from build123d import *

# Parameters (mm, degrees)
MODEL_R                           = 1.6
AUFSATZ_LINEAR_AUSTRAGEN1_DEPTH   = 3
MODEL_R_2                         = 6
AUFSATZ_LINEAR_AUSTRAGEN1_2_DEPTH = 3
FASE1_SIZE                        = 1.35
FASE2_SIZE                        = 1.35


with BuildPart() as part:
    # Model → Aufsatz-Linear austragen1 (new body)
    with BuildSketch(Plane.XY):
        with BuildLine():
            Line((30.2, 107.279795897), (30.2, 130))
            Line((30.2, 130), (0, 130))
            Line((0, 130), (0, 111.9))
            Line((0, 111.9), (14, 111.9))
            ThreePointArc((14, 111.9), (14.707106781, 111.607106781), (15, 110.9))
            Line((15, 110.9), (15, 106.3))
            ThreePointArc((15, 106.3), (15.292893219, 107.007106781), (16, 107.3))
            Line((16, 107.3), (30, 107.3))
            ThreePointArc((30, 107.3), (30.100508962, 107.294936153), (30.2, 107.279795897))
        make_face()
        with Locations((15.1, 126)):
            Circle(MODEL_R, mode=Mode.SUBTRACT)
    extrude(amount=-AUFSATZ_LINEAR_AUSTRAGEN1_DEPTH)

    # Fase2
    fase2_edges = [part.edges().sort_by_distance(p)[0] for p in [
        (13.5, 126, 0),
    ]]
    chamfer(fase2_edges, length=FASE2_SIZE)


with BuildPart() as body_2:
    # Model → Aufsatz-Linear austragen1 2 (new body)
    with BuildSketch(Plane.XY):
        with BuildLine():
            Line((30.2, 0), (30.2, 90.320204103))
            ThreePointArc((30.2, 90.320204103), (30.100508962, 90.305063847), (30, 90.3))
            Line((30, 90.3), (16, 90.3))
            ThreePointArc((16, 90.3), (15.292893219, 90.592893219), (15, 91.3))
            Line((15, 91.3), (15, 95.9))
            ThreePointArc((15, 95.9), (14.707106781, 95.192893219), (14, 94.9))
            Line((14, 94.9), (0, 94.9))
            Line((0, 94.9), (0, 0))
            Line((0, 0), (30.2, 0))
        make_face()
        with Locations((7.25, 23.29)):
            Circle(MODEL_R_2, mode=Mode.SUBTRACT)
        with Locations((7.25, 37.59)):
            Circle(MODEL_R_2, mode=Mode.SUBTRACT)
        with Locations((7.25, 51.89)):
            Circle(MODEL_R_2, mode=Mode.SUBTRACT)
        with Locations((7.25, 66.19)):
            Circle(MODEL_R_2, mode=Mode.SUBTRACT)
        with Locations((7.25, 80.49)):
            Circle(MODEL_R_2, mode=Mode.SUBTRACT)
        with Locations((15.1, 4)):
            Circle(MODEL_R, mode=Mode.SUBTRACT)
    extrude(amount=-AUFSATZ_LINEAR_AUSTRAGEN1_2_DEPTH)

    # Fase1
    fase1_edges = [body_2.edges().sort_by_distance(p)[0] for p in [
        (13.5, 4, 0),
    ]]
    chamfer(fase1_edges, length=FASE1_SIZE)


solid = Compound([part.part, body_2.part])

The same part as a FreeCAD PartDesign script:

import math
import FreeCAD as App
import Part
import Sketcher
from FreeCAD import Vector
Q = App.Units.Quantity


def edges_at(feature, points):
    """Names of the edges that pass closest to the given points."""
    edges = feature.Shape.Edges
    near = lambda p: min(range(len(edges)), key=lambda i: edges[i].distToShape(Part.Vertex(*p))[0])
    return sorted({f"Edge{near(p) + 1}" for p in points})

doc = App.newDocument("Part")
params = doc.addObject("Spreadsheet::Sheet", "Params")
for row, (alias, value) in enumerate([
    ("sketch1_radius", "1 mm"),
    ("sketch1_diameter", "3.2 mm"),
    ("sketch1_width", "14 mm"),
    ("sketch1_width2", "30.2 mm"),
    ("sketch1_height", "18.1 mm"),
    ("pad1_length", "3 mm"),
    ("chamfer_size", "1.35 mm"),
    ("sketch2_diameter", "12 mm"),
    ("sketch2_radius", "1 mm"),
    ("sketch2_diameter2", "3.2 mm"),
    ("sketch2_width", "14 mm"),
    ("sketch2_width2", "30.2 mm"),
    ("pad2_length", "3 mm"),
    ("chamfer2_size", "1.35 mm"),
], start=1):
    params.set(f"A{row}", alias)
    params.set(f"B{row}", "=" + value)
    params.setAlias(f"B{row}", alias)

body = doc.addObject("PartDesign::Body", "Body")

sketch1 = body.newObject("Sketcher::SketchObject", "Sketch")
sketch1.AttachmentSupport = (doc.getObject("XY_Plane"), [""])
sketch1.MapMode = "FlatFace"
sketch1.addGeometry(Part.LineSegment(Vector(30.2, 107.279796, 0), Vector(30.2, 130, 0)), False)
sketch1.addGeometry(Part.LineSegment(Vector(30.2, 130, 0), Vector(0, 130, 0)), False)
sketch1.addGeometry(Part.LineSegment(Vector(0, 130, 0), Vector(0, 111.9, 0)), False)
sketch1.addGeometry(Part.LineSegment(Vector(0, 111.9, 0), Vector(14, 111.9, 0)), False)
sketch1.addGeometry(Part.ArcOfCircle(Part.Circle(Vector(14, 110.9, 0), Vector(0, 0, 1), 1), math.radians(0), math.radians(90)), False)
sketch1.addGeometry(Part.LineSegment(Vector(15, 110.9, 0), Vector(15, 106.3, 0)), False)
sketch1.addGeometry(Part.ArcOfCircle(Part.Circle(Vector(16, 106.3, 0), Vector(0, 0, 1), 1), math.radians(90), math.radians(180)), False)
sketch1.addGeometry(Part.LineSegment(Vector(16, 107.3, 0), Vector(30, 107.3, 0)), False)
sketch1.addGeometry(Part.ArcOfCircle(Part.Circle(Vector(30, 106.3, 0), Vector(0, 0, 1), 1), math.radians(78.463041), math.radians(90)), False)
sketch1.addGeometry(Part.Circle(Vector(15.1, 126, 0), Vector(0, 0, 1), 1.6), False)
sketch1.addConstraint(Sketcher.Constraint("Coincident", 0, 2, 1, 1))
sketch1.addConstraint(Sketcher.Constraint("Coincident", 1, 2, 2, 1))
sketch1.addConstraint(Sketcher.Constraint("Coincident", 2, 2, 3, 1))
sketch1.addConstraint(Sketcher.Constraint("Tangent", 3, 2, 4, 2))
sketch1.addConstraint(Sketcher.Constraint("Tangent", 4, 1, 5, 1))
sketch1.addConstraint(Sketcher.Constraint("Tangent", 5, 2, 6, 2))
sketch1.addConstraint(Sketcher.Constraint("Tangent", 6, 1, 7, 1))
sketch1.addConstraint(Sketcher.Constraint("Tangent", 7, 2, 8, 2))
sketch1.addConstraint(Sketcher.Constraint("Coincident", 8, 1, 0, 1))
sketch1.addConstraint(Sketcher.Constraint("Vertical", 0))
sketch1.addConstraint(Sketcher.Constraint("Horizontal", 1))
sketch1.addConstraint(Sketcher.Constraint("Vertical", 2))
sketch1.addConstraint(Sketcher.Constraint("Horizontal", 3))
sketch1.addConstraint(Sketcher.Constraint("Vertical", 5))
sketch1.addConstraint(Sketcher.Constraint("Horizontal", 7))
sketch1.addConstraint(Sketcher.Constraint("Equal", 4, 6))
sketch1.addConstraint(Sketcher.Constraint("Equal", 6, 8))
sketch1.addConstraint(Sketcher.Constraint("PointOnObject", 1, 2, -2))
sketch1.addConstraint(Sketcher.Constraint("Equal", 3, 7))
sketch1.addConstraint(Sketcher.Constraint("Radius", 4, Q("1 mm")))
sketch1.addConstraint(Sketcher.Constraint("Diameter", 9, Q("3.2 mm")))
sketch1.addConstraint(Sketcher.Constraint("DistanceX", 3, 1, 3, 2, Q("14 mm")))
sketch1.addConstraint(Sketcher.Constraint("DistanceX", 1, 2, 1, 1, Q("30.2 mm")))
sketch1.addConstraint(Sketcher.Constraint("DistanceY", 2, 2, 2, 1, Q("18.1 mm")))
sketch1.addConstraint(Sketcher.Constraint("DistanceY", 5, 2, 5, 1, Q("4.6 mm")))
sketch1.addConstraint(Sketcher.Constraint("DistanceY", -1, 1, 9, 3, Q("126 mm")))
sketch1.addConstraint(Sketcher.Constraint("DistanceY", -1, 1, 0, 2, Q("130 mm")))
sketch1.addConstraint(Sketcher.Constraint("DistanceX", -1, 1, 9, 3, Q("15.1 mm")))
sketch1.setExpression("Constraints[19]", "Params.sketch1_radius")
sketch1.setExpression("Constraints[20]", "Params.sketch1_diameter")
sketch1.setExpression("Constraints[21]", "Params.sketch1_width")
sketch1.setExpression("Constraints[22]", "Params.sketch1_width2")
sketch1.setExpression("Constraints[23]", "Params.sketch1_height")
pad1 = body.newObject("PartDesign::Pad", "Pad")
pad1.Profile = sketch1
pad1.setExpression("Length", "Params.pad1_length")
pad1.Reversed = True
doc.recompute()

chamfer = body.newObject("PartDesign::Chamfer", "Chamfer")
chamfer.Base = (pad1, edges_at(pad1, [(13.5, 126, 0)]))
chamfer.setExpression("Size", "Params.chamfer_size")
body2 = doc.addObject("PartDesign::Body", "Body001")

sketch2 = body2.newObject("Sketcher::SketchObject", "Sketch001")
sketch2.AttachmentSupport = (doc.getObject("XY_Plane001"), [""])
sketch2.MapMode = "FlatFace"
sketch2.addGeometry(Part.LineSegment(Vector(30.2, 0, 0), Vector(30.2, 90.320204, 0)), False)
sketch2.addGeometry(Part.ArcOfCircle(Part.Circle(Vector(30, 91.3, 0), Vector(0, 0, 1), 1), math.radians(-90), math.radians(-78.463041)), False)
sketch2.addGeometry(Part.LineSegment(Vector(30, 90.3, 0), Vector(16, 90.3, 0)), False)
sketch2.addGeometry(Part.ArcOfCircle(Part.Circle(Vector(16, 91.3, 0), Vector(0, 0, 1), 1), math.radians(-180), math.radians(-90)), False)
sketch2.addGeometry(Part.LineSegment(Vector(15, 91.3, 0), Vector(15, 95.9, 0)), False)
sketch2.addGeometry(Part.ArcOfCircle(Part.Circle(Vector(14, 95.9, 0), Vector(0, 0, 1), 1), math.radians(-90), math.radians(0)), False)
sketch2.addGeometry(Part.LineSegment(Vector(14, 94.9, 0), Vector(0, 94.9, 0)), False)
sketch2.addGeometry(Part.LineSegment(Vector(0, 94.9, 0), Vector(0, 0, 0)), False)
sketch2.addGeometry(Part.LineSegment(Vector(0, 0, 0), Vector(30.2, 0, 0)), False)
sketch2.addGeometry(Part.Circle(Vector(7.25, 23.29, 0), Vector(0, 0, 1), 6), False)
sketch2.addGeometry(Part.Circle(Vector(7.25, 37.59, 0), Vector(0, 0, 1), 6), False)
sketch2.addGeometry(Part.Circle(Vector(15.1, 4, 0), Vector(0, 0, 1), 1.6), False)
sketch2.addGeometry(Part.Circle(Vector(7.25, 51.89, 0), Vector(0, 0, 1), 6), False)
sketch2.addGeometry(Part.Circle(Vector(7.25, 66.19, 0), Vector(0, 0, 1), 6), False)
sketch2.addGeometry(Part.Circle(Vector(7.25, 80.49, 0), Vector(0, 0, 1), 6), False)
sketch2.addConstraint(Sketcher.Constraint("Coincident", 0, 2, 1, 2))
sketch2.addConstraint(Sketcher.Constraint("Tangent", 1, 1, 2, 1))
sketch2.addConstraint(Sketcher.Constraint("Tangent", 2, 2, 3, 2))
sketch2.addConstraint(Sketcher.Constraint("Tangent", 3, 1, 4, 1))
sketch2.addConstraint(Sketcher.Constraint("Tangent", 4, 2, 5, 2))
sketch2.addConstraint(Sketcher.Constraint("Tangent", 5, 1, 6, 1))
sketch2.addConstraint(Sketcher.Constraint("Coincident", 6, 2, 7, 1))
sketch2.addConstraint(Sketcher.Constraint("Coincident", 7, 2, 8, 1))
sketch2.addConstraint(Sketcher.Constraint("Coincident", 8, 2, 0, 1))
sketch2.addConstraint(Sketcher.Constraint("Vertical", 0))
sketch2.addConstraint(Sketcher.Constraint("Horizontal", 2))
sketch2.addConstraint(Sketcher.Constraint("Vertical", 4))
sketch2.addConstraint(Sketcher.Constraint("Horizontal", 6))
sketch2.addConstraint(Sketcher.Constraint("Vertical", 7))
sketch2.addConstraint(Sketcher.Constraint("Horizontal", 8))
sketch2.addConstraint(Sketcher.Constraint("Coincident", 7, 2, -1, 1))
sketch2.addConstraint(Sketcher.Constraint("Equal", 1, 3))
sketch2.addConstraint(Sketcher.Constraint("Equal", 3, 5))
sketch2.addConstraint(Sketcher.Constraint("Equal", 9, 10))
sketch2.addConstraint(Sketcher.Constraint("Equal", 10, 12))
sketch2.addConstraint(Sketcher.Constraint("Equal", 12, 13))
sketch2.addConstraint(Sketcher.Constraint("Equal", 13, 14))
sketch2.addConstraint(Sketcher.Constraint("Vertical", 9, 3, 10, 3))
sketch2.addConstraint(Sketcher.Constraint("Vertical", 10, 3, 12, 3))
sketch2.addConstraint(Sketcher.Constraint("Vertical", 12, 3, 13, 3))
sketch2.addConstraint(Sketcher.Constraint("Vertical", 13, 3, 14, 3))
sketch2.addConstraint(Sketcher.Constraint("Equal", 2, 6))
sketch2.addConstraint(Sketcher.Constraint("Diameter", 9, Q("12 mm")))
sketch2.addConstraint(Sketcher.Constraint("Radius", 1, Q("1 mm")))
sketch2.addConstraint(Sketcher.Constraint("Diameter", 11, Q("3.2 mm")))
sketch2.addConstraint(Sketcher.Constraint("DistanceX", 2, 2, 2, 1, Q("14 mm")))
sketch2.addConstraint(Sketcher.Constraint("DistanceX", 8, 1, 8, 2, Q("30.2 mm")))
sketch2.addConstraint(Sketcher.Constraint("DistanceY", 4, 1, 4, 2, Q("4.6 mm")))
sketch2.addConstraint(Sketcher.Constraint("DistanceY", 7, 2, 7, 1, Q("94.9 mm")))
sketch2.addConstraint(Sketcher.Constraint("DistanceY", -1, 1, 11, 3, Q("4 mm")))
sketch2.addConstraint(Sketcher.Constraint("DistanceX", -1, 1, 11, 3, Q("15.1 mm")))
sketch2.addConstraint(Sketcher.Constraint("DistanceY", 9, 3, 10, 3, Q("14.3 mm")))
sketch2.addConstraint(Sketcher.Constraint("DistanceY", 10, 3, 12, 3, Q("14.3 mm")))
sketch2.addConstraint(Sketcher.Constraint("DistanceY", 12, 3, 13, 3, Q("14.3 mm")))
sketch2.addConstraint(Sketcher.Constraint("DistanceY", 13, 3, 14, 3, Q("14.3 mm")))
sketch2.addConstraint(Sketcher.Constraint("DistanceX", -1, 1, 9, 3, Q("7.25 mm")))
sketch2.addConstraint(Sketcher.Constraint("DistanceY", -1, 1, 9, 3, Q("23.29 mm")))
sketch2.setExpression("Constraints[27]", "Params.sketch2_diameter")
sketch2.setExpression("Constraints[28]", "Params.sketch2_radius")
sketch2.setExpression("Constraints[29]", "Params.sketch2_diameter2")
sketch2.setExpression("Constraints[30]", "Params.sketch2_width")
sketch2.setExpression("Constraints[31]", "Params.sketch2_width2")
pad2 = body2.newObject("PartDesign::Pad", "Pad001")
pad2.Profile = sketch2
pad2.setExpression("Length", "Params.pad2_length")
pad2.Reversed = True
doc.recompute()

chamfer2 = body2.newObject("PartDesign::Chamfer", "Chamfer001")
chamfer2.Base = (pad2, edges_at(pad2, [(13.5, 4, 0)]))
chamfer2.setExpression("Size", "Params.chamfer2_size")

doc.recompute()
